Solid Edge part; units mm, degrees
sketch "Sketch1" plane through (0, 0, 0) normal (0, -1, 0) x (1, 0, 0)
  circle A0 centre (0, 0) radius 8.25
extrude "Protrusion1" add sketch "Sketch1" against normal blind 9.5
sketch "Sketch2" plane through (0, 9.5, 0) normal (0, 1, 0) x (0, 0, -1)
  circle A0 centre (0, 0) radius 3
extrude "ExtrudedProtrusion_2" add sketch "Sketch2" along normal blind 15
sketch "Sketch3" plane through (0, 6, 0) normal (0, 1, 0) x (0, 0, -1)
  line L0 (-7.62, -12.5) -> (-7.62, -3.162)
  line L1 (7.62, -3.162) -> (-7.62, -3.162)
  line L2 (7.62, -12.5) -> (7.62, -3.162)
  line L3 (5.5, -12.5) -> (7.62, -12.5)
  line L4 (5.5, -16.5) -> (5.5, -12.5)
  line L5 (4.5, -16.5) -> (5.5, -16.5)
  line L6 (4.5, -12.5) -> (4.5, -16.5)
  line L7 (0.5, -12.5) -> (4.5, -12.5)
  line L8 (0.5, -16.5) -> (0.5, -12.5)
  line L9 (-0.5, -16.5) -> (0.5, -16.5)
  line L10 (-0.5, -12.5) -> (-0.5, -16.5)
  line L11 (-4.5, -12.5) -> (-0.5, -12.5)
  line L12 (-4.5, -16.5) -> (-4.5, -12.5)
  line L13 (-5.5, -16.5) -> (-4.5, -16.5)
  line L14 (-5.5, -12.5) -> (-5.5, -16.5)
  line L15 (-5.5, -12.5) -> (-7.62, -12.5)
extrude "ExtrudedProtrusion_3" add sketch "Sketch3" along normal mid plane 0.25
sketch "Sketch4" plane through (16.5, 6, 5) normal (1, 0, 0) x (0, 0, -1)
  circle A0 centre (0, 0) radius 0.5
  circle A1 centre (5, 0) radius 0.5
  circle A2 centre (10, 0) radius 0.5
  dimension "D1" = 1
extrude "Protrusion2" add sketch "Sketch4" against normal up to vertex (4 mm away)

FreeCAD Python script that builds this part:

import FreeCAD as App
import Part
import Sketcher

V = App.Vector
Q = App.Units.Quantity

doc = App.newDocument("Part")
body = doc.addObject("PartDesign::Body", "Body")

# Sketch on XZ plane
sketch1 = body.newObject("Sketcher::SketchObject", "Sketch")
sketch1.AttachmentSupport = (doc.getObject("XZ_Plane"), [""])
sketch1.MapMode = "FlatFace"
sketch1.addGeometry(Part.Circle(V(0, 0, 0), V(0, 0, 1), 8), False)
sketch1.addConstraint(Sketcher.Constraint("Coincident", 0, 3, -1, 1))
sketch1.addConstraint(Sketcher.Constraint("Diameter", 0, Q("16.5 mm")))
pad1 = body.newObject("PartDesign::Pad", "Pad")
pad1.Profile = sketch1
pad1.Length = 9.5
pad1.Reversed = True

# Sketch on XZ plane
sketch2 = body.newObject("Sketcher::SketchObject", "Sketch001")
sketch2.AttachmentSupport = (doc.getObject("XZ_Plane"), [""])
sketch2.MapMode = "FlatFace"
sketch2.AttachmentOffset = App.Placement(V(0, 0, -9.5), App.Rotation())
sketch2.addGeometry(Part.Circle(V(0, 0, 0), V(0, 0, 1), 3), False)
sketch2.addConstraint(Sketcher.Constraint("Coincident", 0, 3, -1, 1))
sketch2.addConstraint(Sketcher.Constraint("Diameter", 0, Q("6 mm")))
pad2 = body.newObject("PartDesign::Pad", "Pad001")
pad2.Profile = sketch2
pad2.Length = 15
pad2.Reversed = True

# Sketch on XZ plane
sketch3 = body.newObject("Sketcher::SketchObject", "Sketch002")
sketch3.AttachmentSupport = (doc.getObject("XZ_Plane"), [""])
sketch3.MapMode = "FlatFace"
sketch3.AttachmentOffset = App.Placement(V(0, 0, -6), App.Rotation())
sketch3.addGeometry(Part.LineSegment(V(3.2, 7.6, 0), V(12.5, 7.6, 0)), False)
sketch3.addGeometry(Part.LineSegment(V(12.5, 7.6, 0), V(12.5, 5.5, 0)), False)
sketch3.addGeometry(Part.LineSegment(V(12.5, 5.5, 0), V(16.5, 5.5, 0)), False)
sketch3.addGeometry(Part.LineSegment(V(16.5, 5.5, 0), V(16.5, 4.5, 0)), False)
sketch3.addGeometry(Part.LineSegment(V(16.5, 4.5, 0), V(12.5, 4.5, 0)), False)
sketch3.addGeometry(Part.LineSegment(V(12.5, 4.5, 0), V(12.5, 0.5, 0)), False)
sketch3.addGeometry(Part.LineSegment(V(12.5, 0.5, 0), V(16.5, 0.5, 0)), False)
sketch3.addGeometry(Part.LineSegment(V(16.5, 0.5, 0), V(16.5, -0.5, 0)), False)
sketch3.addGeometry(Part.LineSegment(V(16.5, -0.5, 0), V(12.5, -0.5, 0)), False)
sketch3.addGeometry(Part.LineSegment(V(12.5, -0.5, 0), V(12.5, -4.5, 0)), False)
sketch3.addGeometry(Part.LineSegment(V(12.5, -4.5, 0), V(16.5, -4.5, 0)), False)
sketch3.addGeometry(Part.LineSegment(V(16.5, -4.5, 0), V(16.5, -5.5, 0)), False)
sketch3.addGeometry(Part.LineSegment(V(16.5, -5.5, 0), V(12.5, -5.5, 0)), False)
sketch3.addGeometry(Part.LineSegment(V(12.5, -5.5, 0), V(12.5, -7.6, 0)), False)
sketch3.addGeometry(Part.LineSegment(V(12.5, -7.6, 0), V(3.2, -7.6, 0)), False)
sketch3.addGeometry(Part.LineSegment(V(3.2, -7.6, 0), V(3.2, 7.6, 0)), False)
sketch3.addConstraint(Sketcher.Constraint("Coincident", 0, 2, 1, 1))
sketch3.addConstraint(Sketcher.Constraint("Coincident", 1, 2, 2, 1))
sketch3.addConstraint(Sketcher.Constraint("Coincident", 2, 2, 3, 1))
sketch3.addConstraint(Sketcher.Constraint("Coincident", 3, 2, 4, 1))
sketch3.addConstraint(Sketcher.Constraint("Coincident", 4, 2, 5, 1))
sketch3.addConstraint(Sketcher.Constraint("Coincident", 5, 2, 6, 1))
sketch3.addConstraint(Sketcher.Constraint("Coincident", 6, 2, 7, 1))
sketch3.addConstraint(Sketcher.Constraint("Coincident", 7, 2, 8, 1))
sketch3.addConstraint(Sketcher.Constraint("Coincident", 8, 2, 9, 1))
sketch3.addConstraint(Sketcher.Constraint("Coincident", 9, 2, 10, 1))
sketch3.addConstraint(Sketcher.Constraint("Coincident", 10, 2, 11, 1))
sketch3.addConstraint(Sketcher.Constraint("Coincident", 11, 2, 12, 1))
sketch3.addConstraint(Sketcher.Constraint("Coincident", 12, 2, 13, 1))
sketch3.addConstraint(Sketcher.Constraint("Coincident", 13, 2, 14, 1))
sketch3.addConstraint(Sketcher.Constraint("Coincident", 14, 2, 15, 1))
sketch3.addConstraint(Sketcher.Constraint("Coincident", 15, 2, 0, 1))
sketch3.addConstraint(Sketcher.Constraint("Horizontal", 0))
sketch3.addConstraint(Sketcher.Constraint("Vertical", 1))
sketch3.addConstraint(Sketcher.Constraint("Horizontal", 2))
sketch3.addConstraint(Sketcher.Constraint("Vertical", 3))
sketch3.addConstraint(Sketcher.Constraint("Horizontal", 4))
sketch3.addConstraint(Sketcher.Constraint("Vertical", 5))
sketch3.addConstraint(Sketcher.Constraint("Horizontal", 6))
sketch3.addConstraint(Sketcher.Constraint("Vertical", 7))
sketch3.addConstraint(Sketcher.Constraint("Horizontal", 8))
sketch3.addConstraint(Sketcher.Constraint("Vertical", 9))
sketch3.addConstraint(Sketcher.Constraint("Horizontal", 10))
sketch3.addConstraint(Sketcher.Constraint("Vertical", 11))
sketch3.addConstraint(Sketcher.Constraint("Horizontal", 12))
sketch3.addConstraint(Sketcher.Constraint("Vertical", 13))
sketch3.addConstraint(Sketcher.Constraint("Horizontal", 14))
sketch3.addConstraint(Sketcher.Constraint("Vertical", 15))
sketch3.addConstraint(Sketcher.Constraint("Symmetric", 5, 2, 8, 2, -1))
sketch3.addConstraint(Sketcher.Constraint("Symmetric", 3, 2, 10, 2, -1))
sketch3.addConstraint(Sketcher.Constraint("Symmetric", 1, 2, 12, 2, -1))
sketch3.addConstraint(Sketcher.Constraint("Vertical", 1, 2, 4, 2))
sketch3.addConstraint(Sketcher.Constraint("Vertical", 3, 2, 6, 2))
sketch3.addConstraint(Sketcher.Constraint("Equal", 12, 5))
sketch3.addConstraint(Sketcher.Constraint("Equal", 3, 7))
sketch3.addConstraint(Sketcher.Constraint("Equal", 1, 13))
sketch3.addConstraint(Sketcher.Constraint("DistanceX", 2, 1, 2, 2, Q("4 mm")))
sketch3.addConstraint(Sketcher.Constraint("DistanceY", 3, 2, 3, 1, Q("1 mm")))
sketch3.addConstraint(Sketcher.Constraint("DistanceY", 1, 2, 1, 1, Q("2.12 mm")))
sketch3.addConstraint(Sketcher.Constraint("DistanceX", -1, 1, 0, 2, Q("12.5 mm")))
sketch3.addConstraint(Sketcher.Constraint("DistanceX", 0, 1, 0, 2, Q("9.338 mm")))
pad3 = body.newObject("PartDesign::Pad", "Pad002")
pad3.Profile = sketch3
pad3.Length = 0.25
pad3.Midplane = True

# Sketch on YZ plane
sketch4 = body.newObject("Sketcher::SketchObject", "Sketch003")
sketch4.AttachmentSupport = (doc.getObject("YZ_Plane"), [""])
sketch4.MapMode = "FlatFace"
sketch4.AttachmentOffset = App.Placement(V(0, 0, 16.5), App.Rotation())
sketch4.addGeometry(Part.Circle(V(6, 5, 0), V(0, 0, 1), 0.5), False)
sketch4.addGeometry(Part.Circle(V(6, 0, 0), V(0, 0, 1), 0.5), False)
sketch4.addGeometry(Part.Circle(V(6, -5, 0), V(0, 0, 1), 0.5), False)
sketch4.addConstraint(Sketcher.Constraint("Equal", 0, 1))
sketch4.addConstraint(Sketcher.Constraint("Equal", 1, 2))
sketch4.addConstraint(Sketcher.Constraint("Symmetric", 0, 3, 2, 3, -1))
sketch4.addConstraint(Sketcher.Constraint("PointOnObject", 1, 3, -1))
sketch4.addConstraint(Sketcher.Constraint("Vertical", 0, 3, 1, 3))
sketch4.addConstraint(Sketcher.Constraint("Diameter", 0, Q("1 mm")))
sketch4.addConstraint(Sketcher.Constraint("DistanceX", -1, 1, 0, 3, Q("6 mm")))
sketch4.addConstraint(Sketcher.Constraint("DistanceY", -1, 1, 0, 3, Q("5 mm")))
pad4 = body.newObject("PartDesign::Pad", "Pad003")
pad4.Profile = sketch4
pad4.Length = 4
pad4.Reversed = True

doc.recompute()
